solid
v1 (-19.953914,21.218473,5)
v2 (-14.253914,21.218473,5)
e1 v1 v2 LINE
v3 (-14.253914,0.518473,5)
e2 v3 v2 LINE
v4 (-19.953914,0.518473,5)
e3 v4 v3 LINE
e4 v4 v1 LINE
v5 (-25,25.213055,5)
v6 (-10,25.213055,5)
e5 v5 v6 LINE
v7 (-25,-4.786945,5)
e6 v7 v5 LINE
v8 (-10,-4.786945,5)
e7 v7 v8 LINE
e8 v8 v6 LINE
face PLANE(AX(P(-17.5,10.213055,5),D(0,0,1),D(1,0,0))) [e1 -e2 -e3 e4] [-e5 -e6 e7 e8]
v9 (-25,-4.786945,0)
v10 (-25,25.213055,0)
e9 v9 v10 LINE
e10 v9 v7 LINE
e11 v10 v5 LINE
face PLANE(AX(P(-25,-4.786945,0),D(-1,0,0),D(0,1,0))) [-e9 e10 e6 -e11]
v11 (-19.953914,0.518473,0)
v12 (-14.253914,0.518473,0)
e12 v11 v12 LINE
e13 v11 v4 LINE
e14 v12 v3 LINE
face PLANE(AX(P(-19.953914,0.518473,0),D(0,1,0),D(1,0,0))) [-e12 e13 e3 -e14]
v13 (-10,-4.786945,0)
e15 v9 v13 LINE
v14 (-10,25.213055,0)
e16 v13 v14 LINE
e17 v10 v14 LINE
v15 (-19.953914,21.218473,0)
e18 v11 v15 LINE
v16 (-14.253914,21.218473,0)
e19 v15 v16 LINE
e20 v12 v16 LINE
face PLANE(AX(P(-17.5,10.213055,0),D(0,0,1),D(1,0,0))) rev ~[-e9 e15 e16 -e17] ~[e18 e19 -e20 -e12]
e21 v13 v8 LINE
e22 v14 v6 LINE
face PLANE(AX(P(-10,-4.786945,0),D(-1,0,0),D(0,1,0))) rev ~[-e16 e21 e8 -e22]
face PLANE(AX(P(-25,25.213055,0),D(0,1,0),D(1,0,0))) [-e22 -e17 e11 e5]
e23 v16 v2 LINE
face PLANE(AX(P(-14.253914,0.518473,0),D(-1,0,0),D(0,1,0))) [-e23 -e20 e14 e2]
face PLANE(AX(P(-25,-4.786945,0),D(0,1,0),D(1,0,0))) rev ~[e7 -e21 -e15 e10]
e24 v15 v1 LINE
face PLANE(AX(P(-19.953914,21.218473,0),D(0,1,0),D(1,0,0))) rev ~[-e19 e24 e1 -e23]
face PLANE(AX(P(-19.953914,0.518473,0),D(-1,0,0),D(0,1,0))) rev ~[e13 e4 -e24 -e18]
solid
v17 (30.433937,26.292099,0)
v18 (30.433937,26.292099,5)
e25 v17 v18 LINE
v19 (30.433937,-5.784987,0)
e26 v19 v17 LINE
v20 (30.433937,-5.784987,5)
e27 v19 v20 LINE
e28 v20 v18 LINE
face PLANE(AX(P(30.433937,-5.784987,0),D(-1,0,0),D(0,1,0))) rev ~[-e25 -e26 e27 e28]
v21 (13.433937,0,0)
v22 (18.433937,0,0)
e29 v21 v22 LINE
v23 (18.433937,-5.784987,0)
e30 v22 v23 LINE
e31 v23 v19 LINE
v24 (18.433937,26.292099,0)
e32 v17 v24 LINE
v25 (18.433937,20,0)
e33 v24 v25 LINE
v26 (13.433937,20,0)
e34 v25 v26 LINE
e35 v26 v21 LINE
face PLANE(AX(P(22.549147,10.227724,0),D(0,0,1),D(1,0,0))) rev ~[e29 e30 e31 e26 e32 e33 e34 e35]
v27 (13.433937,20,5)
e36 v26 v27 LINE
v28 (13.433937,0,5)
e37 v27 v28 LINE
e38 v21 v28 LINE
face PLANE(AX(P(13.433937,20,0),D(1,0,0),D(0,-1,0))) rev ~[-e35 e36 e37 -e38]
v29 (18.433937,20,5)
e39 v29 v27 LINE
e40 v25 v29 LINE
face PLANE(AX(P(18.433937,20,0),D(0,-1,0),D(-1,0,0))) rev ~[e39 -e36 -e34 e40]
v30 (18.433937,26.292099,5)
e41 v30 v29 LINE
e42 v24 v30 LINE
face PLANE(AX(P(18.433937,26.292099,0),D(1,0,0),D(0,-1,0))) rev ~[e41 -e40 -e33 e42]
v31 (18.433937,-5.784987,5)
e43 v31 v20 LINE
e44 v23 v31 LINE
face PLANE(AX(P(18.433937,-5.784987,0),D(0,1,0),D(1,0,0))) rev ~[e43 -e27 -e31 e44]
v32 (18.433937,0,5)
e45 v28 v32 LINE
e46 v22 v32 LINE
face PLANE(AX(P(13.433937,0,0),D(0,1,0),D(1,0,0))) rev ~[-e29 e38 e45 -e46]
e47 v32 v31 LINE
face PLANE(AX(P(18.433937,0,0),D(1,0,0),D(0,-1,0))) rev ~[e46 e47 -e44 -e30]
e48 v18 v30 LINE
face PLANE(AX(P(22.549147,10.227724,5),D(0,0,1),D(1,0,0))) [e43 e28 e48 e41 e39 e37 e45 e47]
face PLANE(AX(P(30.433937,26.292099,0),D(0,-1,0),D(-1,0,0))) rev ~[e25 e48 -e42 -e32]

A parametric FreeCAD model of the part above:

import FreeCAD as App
import Part
import Sketcher
from FreeCAD import Vector
Q = App.Units.Quantity


def add_polygon(sketch, points):
    """Adds a closed chain of lines whose ends are joined by coincident constraints."""
    first, n = sketch.GeometryCount, len(points)
    for a, b in zip(points, points[1:] + points[:1]):
        sketch.addGeometry(Part.LineSegment(App.Vector(*a, 0), App.Vector(*b, 0)), False)
    for i in range(n):
        sketch.addConstraint(Sketcher.Constraint("Coincident", first + i, 2, first + (i + 1) % n, 1))

doc = App.newDocument("Part")
body = doc.addObject("PartDesign::Body", "Body")
body.AllowCompound = True

# Sketch on XY plane
sketch1 = doc.addObject("Sketcher::SketchObject", "Sketch")
body.addObject(sketch1)
sketch1.AttachmentSupport = (doc.XY_Plane, [""])
sketch1.MapMode = "FlatFace"
add_polygon(sketch1, [(-25, 25), (-25, -5), (-10, -5), (-10, 25)])  # lines 0-3
add_polygon(sketch1, [(-14, 1), (-20, 1), (-20, 21), (-14, 21)])  # lines 4-7
add_polygon(sketch1, [(13, 0), (18, 0), (18, -6), (30, -6), (30, 26), (18, 26), (18, 20), (13, 20)])  # lines 8-15
sketch1.addConstraint([
    Sketcher.Constraint("Vertical", 0),
    Sketcher.Constraint("Horizontal", 1),
    Sketcher.Constraint("Vertical", 2),
    Sketcher.Constraint("Horizontal", 3),
    Sketcher.Constraint("Horizontal", 4),
    Sketcher.Constraint("Vertical", 5),
    Sketcher.Constraint("Horizontal", 6),
    Sketcher.Constraint("Vertical", 7),
    Sketcher.Constraint("Horizontal", 8),
    Sketcher.Constraint("Vertical", 9),
    Sketcher.Constraint("Horizontal", 10),
    Sketcher.Constraint("Vertical", 11),
    Sketcher.Constraint("Horizontal", 12),
    Sketcher.Constraint("Vertical", 13),
    Sketcher.Constraint("Horizontal", 14),
    Sketcher.Constraint("Vertical", 15),
    Sketcher.Constraint("PointOnObject", 8, 2, -1),
    Sketcher.Constraint("Vertical", 9, 2, 12, 2),
    Sketcher.Constraint("DistanceX", 1, 1, 1, 2, Q("15 mm")),
    Sketcher.Constraint("DistanceX", 8, 1, 8, 2, Q("5 mm")),
    Sketcher.Constraint("DistanceX", 10, 1, 10, 2, Q("12 mm")),
    Sketcher.Constraint("DistanceY", 0, 2, 0, 1, Q("30 mm")),
    Sketcher.Constraint("DistanceY", 15, 2, 15, 1, Q("20 mm")),
    Sketcher.Constraint("DistanceX", 4, 2, 4, 1, Q("5.7 mm")),
    Sketcher.Constraint("DistanceY", 5, 1, 5, 2, Q("20.7 mm")),
    Sketcher.Constraint("DistanceX", 0, 2, -1, 1, Q("25 mm")),
    Sketcher.Constraint("DistanceY", 13, 2, 13, 1, Q("6.292099 mm")),
    Sketcher.Constraint("DistanceY", 9, 2, 9, 1, Q("5.784987 mm")),
    Sketcher.Constraint("DistanceY", 0, 2, 4, 2, Q("5.305418 mm")),
    Sketcher.Constraint("DistanceX", 7, 2, 8, 2, Q("32.687851 mm")),
    Sketcher.Constraint("DistanceY", 9, 2, 1, 2, Q("0.998042 mm")),
    Sketcher.Constraint("DistanceX", 4, 2, -1, 1, Q("19.953914 mm")),
])
pad1 = doc.addObject("PartDesign::Pad", "Pad")
body.addObject(pad1)
pad1.Profile = sketch1
pad1.Length = 5

doc.recompute()
